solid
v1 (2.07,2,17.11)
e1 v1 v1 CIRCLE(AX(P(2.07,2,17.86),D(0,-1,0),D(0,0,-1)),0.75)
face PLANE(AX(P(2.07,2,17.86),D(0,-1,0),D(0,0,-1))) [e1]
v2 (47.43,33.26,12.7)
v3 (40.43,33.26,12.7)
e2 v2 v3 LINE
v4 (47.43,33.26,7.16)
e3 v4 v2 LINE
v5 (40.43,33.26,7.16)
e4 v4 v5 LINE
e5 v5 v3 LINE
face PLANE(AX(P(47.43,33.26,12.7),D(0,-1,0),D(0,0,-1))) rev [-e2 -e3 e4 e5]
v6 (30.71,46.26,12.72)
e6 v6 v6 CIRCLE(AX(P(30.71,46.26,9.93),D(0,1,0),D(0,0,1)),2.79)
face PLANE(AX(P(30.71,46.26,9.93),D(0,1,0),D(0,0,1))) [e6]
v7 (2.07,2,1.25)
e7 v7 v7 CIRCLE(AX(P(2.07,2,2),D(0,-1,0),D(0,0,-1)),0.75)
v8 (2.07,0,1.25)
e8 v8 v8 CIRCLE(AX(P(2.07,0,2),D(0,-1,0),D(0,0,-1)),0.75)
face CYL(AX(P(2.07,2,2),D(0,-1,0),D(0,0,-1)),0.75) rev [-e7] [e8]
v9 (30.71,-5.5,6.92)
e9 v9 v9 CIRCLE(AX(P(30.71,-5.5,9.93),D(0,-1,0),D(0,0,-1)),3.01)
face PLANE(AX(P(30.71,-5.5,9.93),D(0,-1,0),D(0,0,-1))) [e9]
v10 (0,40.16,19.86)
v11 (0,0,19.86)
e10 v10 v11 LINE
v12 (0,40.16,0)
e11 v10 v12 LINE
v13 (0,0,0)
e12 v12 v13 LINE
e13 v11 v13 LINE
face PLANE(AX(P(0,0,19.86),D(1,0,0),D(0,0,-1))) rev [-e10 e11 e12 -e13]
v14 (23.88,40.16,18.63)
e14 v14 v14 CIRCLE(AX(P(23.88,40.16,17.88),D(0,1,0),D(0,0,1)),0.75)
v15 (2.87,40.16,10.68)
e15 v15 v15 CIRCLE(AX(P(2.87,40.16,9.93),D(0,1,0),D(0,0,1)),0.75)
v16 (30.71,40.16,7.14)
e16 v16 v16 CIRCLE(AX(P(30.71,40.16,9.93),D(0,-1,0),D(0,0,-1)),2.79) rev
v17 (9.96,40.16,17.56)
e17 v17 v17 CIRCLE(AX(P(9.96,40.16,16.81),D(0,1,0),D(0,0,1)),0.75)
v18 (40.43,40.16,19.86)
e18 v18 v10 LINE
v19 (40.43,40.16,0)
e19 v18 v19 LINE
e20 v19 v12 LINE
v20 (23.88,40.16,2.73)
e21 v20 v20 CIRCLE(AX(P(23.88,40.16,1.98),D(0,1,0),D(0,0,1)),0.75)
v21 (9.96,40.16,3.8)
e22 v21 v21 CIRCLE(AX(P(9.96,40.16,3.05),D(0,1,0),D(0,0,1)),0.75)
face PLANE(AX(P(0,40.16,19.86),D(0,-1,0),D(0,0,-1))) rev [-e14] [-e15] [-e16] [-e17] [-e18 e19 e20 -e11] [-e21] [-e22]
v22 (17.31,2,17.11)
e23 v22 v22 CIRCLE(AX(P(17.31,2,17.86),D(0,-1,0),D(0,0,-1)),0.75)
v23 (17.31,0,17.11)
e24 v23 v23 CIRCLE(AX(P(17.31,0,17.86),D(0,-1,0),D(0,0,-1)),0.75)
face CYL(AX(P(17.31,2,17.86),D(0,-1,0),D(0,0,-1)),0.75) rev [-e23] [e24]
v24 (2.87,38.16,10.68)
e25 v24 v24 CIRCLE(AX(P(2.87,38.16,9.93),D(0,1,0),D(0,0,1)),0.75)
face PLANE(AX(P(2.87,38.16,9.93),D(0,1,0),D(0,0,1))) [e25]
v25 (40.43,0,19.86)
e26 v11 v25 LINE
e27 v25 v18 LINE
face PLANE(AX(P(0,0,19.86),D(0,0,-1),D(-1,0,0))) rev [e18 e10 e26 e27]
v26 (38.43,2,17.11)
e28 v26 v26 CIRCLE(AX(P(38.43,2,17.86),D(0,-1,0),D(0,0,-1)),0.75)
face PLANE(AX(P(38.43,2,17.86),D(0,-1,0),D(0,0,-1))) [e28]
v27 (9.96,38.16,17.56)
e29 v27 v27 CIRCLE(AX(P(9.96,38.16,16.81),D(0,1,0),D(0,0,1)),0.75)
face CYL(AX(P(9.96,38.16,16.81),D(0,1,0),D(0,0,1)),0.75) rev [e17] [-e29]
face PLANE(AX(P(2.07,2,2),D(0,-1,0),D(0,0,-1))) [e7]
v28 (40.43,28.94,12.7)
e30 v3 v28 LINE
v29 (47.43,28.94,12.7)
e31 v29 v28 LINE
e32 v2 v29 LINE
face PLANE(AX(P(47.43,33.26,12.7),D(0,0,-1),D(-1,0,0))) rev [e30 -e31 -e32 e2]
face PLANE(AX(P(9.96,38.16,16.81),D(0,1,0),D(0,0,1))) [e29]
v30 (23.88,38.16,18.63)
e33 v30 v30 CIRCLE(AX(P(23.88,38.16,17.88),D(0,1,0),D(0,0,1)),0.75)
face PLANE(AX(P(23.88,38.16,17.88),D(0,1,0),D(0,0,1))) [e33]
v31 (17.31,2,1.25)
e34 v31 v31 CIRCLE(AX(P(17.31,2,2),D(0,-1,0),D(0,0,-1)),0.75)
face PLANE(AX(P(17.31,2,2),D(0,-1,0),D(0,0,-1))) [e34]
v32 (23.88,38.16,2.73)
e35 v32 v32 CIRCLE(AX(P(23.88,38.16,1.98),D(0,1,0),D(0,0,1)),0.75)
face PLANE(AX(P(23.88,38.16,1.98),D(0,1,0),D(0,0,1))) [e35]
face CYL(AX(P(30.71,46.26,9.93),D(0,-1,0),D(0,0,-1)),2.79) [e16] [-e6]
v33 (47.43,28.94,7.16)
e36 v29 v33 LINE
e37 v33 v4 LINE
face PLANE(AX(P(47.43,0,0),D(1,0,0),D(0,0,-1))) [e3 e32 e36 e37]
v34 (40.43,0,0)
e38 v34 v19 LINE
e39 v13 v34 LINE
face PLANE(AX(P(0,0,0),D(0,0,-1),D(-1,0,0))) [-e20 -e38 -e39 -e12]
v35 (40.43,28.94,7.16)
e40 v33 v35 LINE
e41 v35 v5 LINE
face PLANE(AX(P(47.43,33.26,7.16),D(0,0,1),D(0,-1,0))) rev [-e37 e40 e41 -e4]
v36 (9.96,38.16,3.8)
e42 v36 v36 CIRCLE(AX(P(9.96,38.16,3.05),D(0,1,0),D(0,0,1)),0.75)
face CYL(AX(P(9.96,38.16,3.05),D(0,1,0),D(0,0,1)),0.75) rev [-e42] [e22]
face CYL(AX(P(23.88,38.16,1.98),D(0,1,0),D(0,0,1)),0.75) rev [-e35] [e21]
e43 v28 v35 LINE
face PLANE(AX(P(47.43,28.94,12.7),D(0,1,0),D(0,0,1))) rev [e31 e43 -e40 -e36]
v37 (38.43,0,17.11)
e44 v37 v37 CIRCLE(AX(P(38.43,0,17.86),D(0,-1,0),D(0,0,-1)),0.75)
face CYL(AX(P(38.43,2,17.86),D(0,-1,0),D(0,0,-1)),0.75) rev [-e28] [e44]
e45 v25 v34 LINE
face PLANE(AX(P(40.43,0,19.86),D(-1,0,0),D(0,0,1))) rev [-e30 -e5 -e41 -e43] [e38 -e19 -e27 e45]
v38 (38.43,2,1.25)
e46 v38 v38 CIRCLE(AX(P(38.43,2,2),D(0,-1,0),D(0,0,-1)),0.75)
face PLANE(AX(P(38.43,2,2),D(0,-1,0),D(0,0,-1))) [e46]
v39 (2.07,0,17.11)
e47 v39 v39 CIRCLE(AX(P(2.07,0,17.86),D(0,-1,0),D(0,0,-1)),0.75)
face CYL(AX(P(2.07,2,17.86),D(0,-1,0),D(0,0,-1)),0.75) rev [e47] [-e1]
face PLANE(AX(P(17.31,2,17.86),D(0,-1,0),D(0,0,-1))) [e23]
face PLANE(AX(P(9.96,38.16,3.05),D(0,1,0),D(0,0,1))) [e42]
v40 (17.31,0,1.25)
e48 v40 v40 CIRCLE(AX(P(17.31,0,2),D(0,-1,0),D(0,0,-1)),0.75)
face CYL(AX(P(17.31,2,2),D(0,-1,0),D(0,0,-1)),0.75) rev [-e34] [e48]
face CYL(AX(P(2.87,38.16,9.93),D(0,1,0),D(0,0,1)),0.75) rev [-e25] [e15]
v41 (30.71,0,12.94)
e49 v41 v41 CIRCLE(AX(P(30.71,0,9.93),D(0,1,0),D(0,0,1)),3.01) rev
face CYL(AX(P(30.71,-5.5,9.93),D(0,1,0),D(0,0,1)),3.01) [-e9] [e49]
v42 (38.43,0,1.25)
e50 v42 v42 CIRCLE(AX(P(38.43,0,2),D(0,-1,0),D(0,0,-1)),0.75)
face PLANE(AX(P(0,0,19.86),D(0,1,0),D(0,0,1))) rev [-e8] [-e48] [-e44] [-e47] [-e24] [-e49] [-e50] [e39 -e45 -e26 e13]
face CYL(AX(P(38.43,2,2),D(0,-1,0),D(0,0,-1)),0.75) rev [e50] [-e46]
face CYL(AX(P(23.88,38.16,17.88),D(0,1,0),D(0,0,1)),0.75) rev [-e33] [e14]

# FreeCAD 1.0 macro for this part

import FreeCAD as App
import Part
import Sketcher
from FreeCAD import Vector
Q = App.Units.Quantity

doc = App.newDocument("Part")
params = doc.addObject("Spreadsheet::Sheet", "Params")
for row, (alias, value) in enumerate([
    ("sketch1_width", "40.43 mm"),
    ("sketch1_height", "40.16 mm"),
    ("pad1_length", "19.86 mm"),
    ("sketch2_diameter", "5.58 mm"),
    ("pad2_length", "6.1 mm"),
    ("sketch3_diameter", "6.02 mm"),
    ("pad3_length", "5.5 mm"),
    ("sketch4_diameter", "1.5 mm"),
    ("pocket1_length", "2 mm"),
    ("sketch5_diameter", "1.5 mm"),
    ("pocket2_length", "2 mm"),
    ("sketch6_width", "4.32 mm"),
    ("sketch6_height", "5.54 mm"),
    ("pad4_length", "7 mm"),
], start=1):
    params.set(f"A{row}", alias)
    params.set(f"B{row}", "=" + value)
    params.setAlias(f"B{row}", alias)

body = doc.addObject("PartDesign::Body", "Body")

# Sketch on XY plane
sketch1 = doc.addObject("Sketcher::SketchObject", "Sketch")
body.addObject(sketch1)
sketch1.AttachmentSupport = (doc.XY_Plane, [""])
sketch1.MapMode = "FlatFace"
sketch1.addGeometry([
    Part.LineSegment(Vector(0, 40.16, 0), Vector(0, 0, 0)),
    Part.LineSegment(Vector(0, 0, 0), Vector(40.43, 0, 0)),
    Part.LineSegment(Vector(40.43, 0, 0), Vector(40.43, 40.16, 0)),
    Part.LineSegment(Vector(40.43, 40.16, 0), Vector(0, 40.16, 0)),
], False)
sketch1.addConstraint([
    Sketcher.Constraint("Coincident", 0, 2, 1, 1),
    Sketcher.Constraint("Coincident", 1, 2, 2, 1),
    Sketcher.Constraint("Coincident", 2, 2, 3, 1),
    Sketcher.Constraint("Coincident", 3, 2, 0, 1),
    Sketcher.Constraint("Vertical", 0),
    Sketcher.Constraint("Horizontal", 1),
    Sketcher.Constraint("Vertical", 2),
    Sketcher.Constraint("Horizontal", 3),
    Sketcher.Constraint("Coincident", 0, 2, -1, 1),
    Sketcher.Constraint("DistanceX", 1, 1, 1, 2, Q("40.43 mm")),
    Sketcher.Constraint("DistanceY", 0, 2, 0, 1, Q("40.16 mm")),
])
sketch1.setExpression("Constraints[9]", "Params.sketch1_width")
sketch1.setExpression("Constraints[10]", "Params.sketch1_height")
pad1 = doc.addObject("PartDesign::Pad", "Pad")
body.addObject(pad1)
pad1.Profile = sketch1
pad1.setExpression("Length", "Params.pad1_length")

# Sketch on XZ plane
sketch2 = doc.addObject("Sketcher::SketchObject", "Sketch001")
body.addObject(sketch2)
sketch2.AttachmentSupport = (doc.XZ_Plane, [""])
sketch2.MapMode = "FlatFace"
sketch2.AttachmentOffset = App.Placement(Vector(0, 0, -40.16), App.Rotation())
sketch2.addGeometry(Part.Circle(Vector(30.71, 9.93, 0), Vector(0, 0, 1), 2.79), False)
sketch2.addConstraint([
    Sketcher.Constraint("Diameter", 0, Q("5.58 mm")),
    Sketcher.Constraint("DistanceX", -1, 1, 0, 3, Q("30.71 mm")),
    Sketcher.Constraint("DistanceY", -1, 1, 0, 3, Q("9.93 mm")),
])
sketch2.setExpression("Constraints[0]", "Params.sketch2_diameter")
pad2 = doc.addObject("PartDesign::Pad", "Pad001")
body.addObject(pad2)
pad2.Profile = sketch2
pad2.setExpression("Length", "Params.pad2_length")
pad2.Reversed = True

# Sketch on XZ plane
sketch3 = doc.addObject("Sketcher::SketchObject", "Sketch002")
body.addObject(sketch3)
sketch3.AttachmentSupport = (doc.XZ_Plane, [""])
sketch3.MapMode = "FlatFace"
sketch3.addGeometry(Part.Circle(Vector(30.71, 9.93, 0), Vector(0, 0, 1), 3.01), False)
sketch3.addConstraint([
    Sketcher.Constraint("Diameter", 0, Q("6.02 mm")),
    Sketcher.Constraint("DistanceX", -1, 1, 0, 3, Q("30.71 mm")),
    Sketcher.Constraint("DistanceY", -1, 1, 0, 3, Q("9.93 mm")),
])
sketch3.setExpression("Constraints[0]", "Params.sketch3_diameter")
pad3 = doc.addObject("PartDesign::Pad", "Pad002")
body.addObject(pad3)
pad3.Profile = sketch3
pad3.setExpression("Length", "Params.pad3_length")

# Sketch on XZ plane
sketch4 = doc.addObject("Sketcher::SketchObject", "Sketch003")
body.addObject(sketch4)
sketch4.AttachmentSupport = (doc.XZ_Plane, [""])
sketch4.MapMode = "FlatFace"
sketch4.AttachmentOffset = App.Placement(Vector(0, 0, -40.16), App.Rotation())
sketch4.addGeometry([
    Part.Circle(Vector(23.88, 1.98, 0), Vector(0, 0, 1), 0.75),  # 0
    Part.Circle(Vector(23.88, 17.88, 0), Vector(0, 0, 1), 0.75),  # 1
    Part.Circle(Vector(2.87, 9.93, 0), Vector(0, 0, 1), 0.75),  # 2
    Part.Circle(Vector(9.96, 3.05, 0), Vector(0, 0, 1), 0.75),  # 3
    Part.Circle(Vector(9.96, 16.81, 0), Vector(0, 0, 1), 0.75),  # 4
], False)
sketch4.addConstraint([
    Sketcher.Constraint("Equal", 0, 1),
    Sketcher.Constraint("Equal", 1, 2),
    Sketcher.Constraint("Equal", 2, 3),
    Sketcher.Constraint("Equal", 3, 4),
    Sketcher.Constraint("Vertical", 0, 3, 1, 3),
    Sketcher.Constraint("Vertical", 3, 3, 4, 3),
    Sketcher.Constraint("Diameter", 0, Q("1.5 mm")),
    Sketcher.Constraint("DistanceY", 0, 3, 1, 3, Q("15.9 mm")),
    Sketcher.Constraint("DistanceX", -1, 1, 0, 3, Q("23.88 mm")),
    Sketcher.Constraint("DistanceY", -1, 1, 0, 3, Q("1.98 mm")),
    Sketcher.Constraint("DistanceX", -1, 1, 2, 3, Q("2.87 mm")),
    Sketcher.Constraint("DistanceY", -1, 1, 2, 3, Q("9.93 mm")),
    Sketcher.Constraint("DistanceX", -1, 1, 3, 3, Q("9.96 mm")),
    Sketcher.Constraint("DistanceY", -1, 1, 3, 3, Q("3.05 mm")),
    Sketcher.Constraint("DistanceY", -1, 1, 4, 3, Q("16.81 mm")),
])
sketch4.setExpression("Constraints[6]", "Params.sketch4_diameter")
pocket1 = doc.addObject("PartDesign::Pocket", "Pocket")
body.addObject(pocket1)
pocket1.Profile = sketch4
pocket1.setExpression("Length", "Params.pocket1_length")
pocket1.Reversed = True

# Sketch on XZ plane
sketch5 = doc.addObject("Sketcher::SketchObject", "Sketch004")
body.addObject(sketch5)
sketch5.AttachmentSupport = (doc.XZ_Plane, [""])
sketch5.MapMode = "FlatFace"
sketch5.addGeometry([
    Part.Circle(Vector(17.31, 17.86, 0), Vector(0, 0, 1), 0.75),  # 0
    Part.Circle(Vector(38.43, 17.86, 0), Vector(0, 0, 1), 0.75),  # 1
    Part.Circle(Vector(2.07, 17.86, 0), Vector(0, 0, 1), 0.75),  # 2
    Part.Circle(Vector(17.31, 2, 0), Vector(0, 0, 1), 0.75),  # 3
    Part.Circle(Vector(38.43, 2, 0), Vector(0, 0, 1), 0.75),  # 4
    Part.Circle(Vector(2.07, 2, 0), Vector(0, 0, 1), 0.75),  # 5
], False)
sketch5.addConstraint([
    Sketcher.Constraint("Equal", 0, 1),
    Sketcher.Constraint("Equal", 1, 2),
    Sketcher.Constraint("Equal", 2, 3),
    Sketcher.Constraint("Equal", 3, 4),
    Sketcher.Constraint("Equal", 4, 5),
    Sketcher.Constraint("Horizontal", 0, 3, 1, 3),
    Sketcher.Constraint("Horizontal", 1, 3, 2, 3),
    Sketcher.Constraint("Horizontal", 3, 3, 4, 3),
    Sketcher.Constraint("Horizontal", 4, 3, 5, 3),
    Sketcher.Constraint("Vertical", 0, 3, 3, 3),
    Sketcher.Constraint("Vertical", 1, 3, 4, 3),
    Sketcher.Constraint("Vertical", 2, 3, 5, 3),
    Sketcher.Constraint("Diameter", 0, Q("1.5 mm")),
    Sketcher.Constraint("DistanceY", -1, 1, 3, 3, Q("2 mm")),
    Sketcher.Constraint("DistanceX", -1, 1, 0, 3, Q("17.31 mm")),
    Sketcher.Constraint("DistanceY", -1, 1, 0, 3, Q("17.86 mm")),
    Sketcher.Constraint("DistanceX", -1, 1, 1, 3, Q("38.43 mm")),
    Sketcher.Constraint("DistanceX", -1, 1, 2, 3, Q("2.07 mm")),
])
sketch5.setExpression("Constraints[12]", "Params.sketch5_diameter")
pocket2 = doc.addObject("PartDesign::Pocket", "Pocket001")
body.addObject(pocket2)
pocket2.Profile = sketch5
pocket2.setExpression("Length", "Params.pocket2_length")

# Sketch on YZ plane
sketch6 = doc.addObject("Sketcher::SketchObject", "Sketch005")
body.addObject(sketch6)
sketch6.AttachmentSupport = (doc.YZ_Plane, [""])
sketch6.MapMode = "FlatFace"
sketch6.AttachmentOffset = App.Placement(Vector(0, 0, 40.43), App.Rotation())
sketch6.addGeometry([
    Part.LineSegment(Vector(33.26, 12.7, 0), Vector(28.94, 12.7, 0)),
    Part.LineSegment(Vector(28.94, 12.7, 0), Vector(28.94, 7.16, 0)),
    Part.LineSegment(Vector(28.94, 7.16, 0), Vector(33.26, 7.16, 0)),
    Part.LineSegment(Vector(33.26, 7.16, 0), Vector(33.26, 12.7, 0)),
], False)
sketch6.addConstraint([
    Sketcher.Constraint("Coincident", 0, 2, 1, 1),
    Sketcher.Constraint("Coincident", 1, 2, 2, 1),
    Sketcher.Constraint("Coincident", 2, 2, 3, 1),
    Sketcher.Constraint("Coincident", 3, 2, 0, 1),
    Sketcher.Constraint("Horizontal", 0),
    Sketcher.Constraint("Vertical", 1),
    Sketcher.Constraint("Horizontal", 2),
    Sketcher.Constraint("Vertical", 3),
    Sketcher.Constraint("DistanceX", 0, 2, 0, 1, Q("4.32 mm")),
    Sketcher.Constraint("DistanceY", 1, 2, 1, 1, Q("5.54 mm")),
    Sketcher.Constraint("DistanceY", -1, 1, 0, 2, Q("12.7 mm")),
    Sketcher.Constraint("DistanceX", -1, 1, 0, 2, Q("28.94 mm")),
])
sketch6.setExpression("Constraints[8]", "Params.sketch6_width")
sketch6.setExpression("Constraints[9]", "Params.sketch6_height")
pad4 = doc.addObject("PartDesign::Pad", "Pad003")
body.addObject(pad4)
pad4.Profile = sketch6
pad4.setExpression("Length", "Params.pad4_length")

doc.recompute()
